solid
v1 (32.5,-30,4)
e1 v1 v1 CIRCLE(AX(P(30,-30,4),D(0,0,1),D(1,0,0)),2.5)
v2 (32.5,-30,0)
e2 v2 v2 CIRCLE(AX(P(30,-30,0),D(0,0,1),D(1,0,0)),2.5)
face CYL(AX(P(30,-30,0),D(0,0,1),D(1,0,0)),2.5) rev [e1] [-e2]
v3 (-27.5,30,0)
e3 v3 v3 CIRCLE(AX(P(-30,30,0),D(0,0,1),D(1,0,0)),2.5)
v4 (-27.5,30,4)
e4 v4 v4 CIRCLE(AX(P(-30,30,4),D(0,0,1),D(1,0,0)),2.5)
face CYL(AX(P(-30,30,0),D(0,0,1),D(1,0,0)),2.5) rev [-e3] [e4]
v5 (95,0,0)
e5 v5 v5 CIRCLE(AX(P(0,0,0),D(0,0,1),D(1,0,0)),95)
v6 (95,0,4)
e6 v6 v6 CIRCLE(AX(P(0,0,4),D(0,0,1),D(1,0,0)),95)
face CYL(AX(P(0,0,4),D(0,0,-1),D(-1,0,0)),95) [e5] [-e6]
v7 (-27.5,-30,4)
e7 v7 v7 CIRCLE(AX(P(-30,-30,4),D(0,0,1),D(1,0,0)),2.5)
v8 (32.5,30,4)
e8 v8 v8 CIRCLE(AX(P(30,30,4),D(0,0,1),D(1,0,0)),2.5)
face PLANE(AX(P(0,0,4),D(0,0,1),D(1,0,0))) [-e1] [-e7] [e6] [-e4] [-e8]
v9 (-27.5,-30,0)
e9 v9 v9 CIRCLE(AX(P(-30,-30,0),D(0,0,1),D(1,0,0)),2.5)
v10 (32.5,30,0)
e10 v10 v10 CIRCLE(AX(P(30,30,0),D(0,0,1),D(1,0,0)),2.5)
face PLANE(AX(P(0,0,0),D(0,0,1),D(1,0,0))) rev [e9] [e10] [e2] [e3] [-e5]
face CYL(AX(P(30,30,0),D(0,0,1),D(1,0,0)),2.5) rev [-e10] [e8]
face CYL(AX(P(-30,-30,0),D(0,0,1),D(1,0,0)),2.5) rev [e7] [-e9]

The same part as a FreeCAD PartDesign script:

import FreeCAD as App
import Part
import Sketcher

V = App.Vector

doc = App.newDocument("Part")
params = doc.addObject("Spreadsheet::Sheet", "Params")
for row, (alias, value) in enumerate([
    ("sketch1_diameter", "190 mm"),
    ("pad1_length", "4 mm"),
    ("sketch2_diameter", "5 mm"),
    ("pocket1_length", "4 mm"),
], start=1):
    params.set(f"A{row}", alias)
    params.set(f"B{row}", "=" + value)
    params.setAlias(f"B{row}", alias)

body = doc.addObject("PartDesign::Body", "Body")

# Sketch on XY plane
sketch1 = body.newObject("Sketcher::SketchObject", "Sketch")
sketch1.AttachmentSupport = (doc.getObject("XY_Plane"), [""])
sketch1.MapMode = "FlatFace"
sketch1.addGeometry(Part.Circle(V(0, 0, 0), V(0, 0, 1), 95), False)
sketch1.addConstraint([
    Sketcher.Constraint("Coincident", 0, 3, -1, 1),
    Sketcher.Constraint("Diameter", 0, 190.0),
])
sketch1.setExpression("Constraints[1]", "Params.sketch1_diameter")
pad1 = body.newObject("PartDesign::Pad", "Pad")
pad1.Profile = sketch1
pad1.setExpression("Length", "Params.pad1_length")

# Sketch on XY plane
sketch2 = body.newObject("Sketcher::SketchObject", "Sketch001")
sketch2.AttachmentSupport = (doc.getObject("XY_Plane"), [""])
sketch2.MapMode = "FlatFace"
sketch2.AttachmentOffset = App.Placement(V(0, 0, 4), App.Rotation())
sketch2.addGeometry([
    Part.Circle(V(-30, 30, 0), V(0, 0, 1), 2.5),
    Part.Circle(V(30, 30, 0), V(0, 0, 1), 2.5),
    Part.Circle(V(-30, -30, 0), V(0, 0, 1), 2.5),
    Part.Circle(V(30, -30, 0), V(0, 0, 1), 2.5),
], False)
sketch2.addConstraint([
    Sketcher.Constraint("Equal", 0, 1),
    Sketcher.Constraint("Equal", 1, 2),
    Sketcher.Constraint("Equal", 2, 3),
    Sketcher.Constraint("Symmetric", 1, 3, 2, 3, -1, 1),
    Sketcher.Constraint("Symmetric", 0, 3, 3, 3, -1, 1),
    Sketcher.Constraint("Symmetric", 0, 3, 1, 3, -2),
    Sketcher.Constraint("Diameter", 0, 5.0),
    Sketcher.Constraint("DistanceX", 0, 3, -1, 1, 30.0),
    Sketcher.Constraint("DistanceY", -1, 1, 0, 3, 30.0),
])
sketch2.setExpression("Constraints[6]", "Params.sketch2_diameter")
pocket1 = body.newObject("PartDesign::Pocket", "Pocket")
pocket1.Profile = sketch2
pocket1.setExpression("Length", "Params.pocket1_length")

doc.recompute()
